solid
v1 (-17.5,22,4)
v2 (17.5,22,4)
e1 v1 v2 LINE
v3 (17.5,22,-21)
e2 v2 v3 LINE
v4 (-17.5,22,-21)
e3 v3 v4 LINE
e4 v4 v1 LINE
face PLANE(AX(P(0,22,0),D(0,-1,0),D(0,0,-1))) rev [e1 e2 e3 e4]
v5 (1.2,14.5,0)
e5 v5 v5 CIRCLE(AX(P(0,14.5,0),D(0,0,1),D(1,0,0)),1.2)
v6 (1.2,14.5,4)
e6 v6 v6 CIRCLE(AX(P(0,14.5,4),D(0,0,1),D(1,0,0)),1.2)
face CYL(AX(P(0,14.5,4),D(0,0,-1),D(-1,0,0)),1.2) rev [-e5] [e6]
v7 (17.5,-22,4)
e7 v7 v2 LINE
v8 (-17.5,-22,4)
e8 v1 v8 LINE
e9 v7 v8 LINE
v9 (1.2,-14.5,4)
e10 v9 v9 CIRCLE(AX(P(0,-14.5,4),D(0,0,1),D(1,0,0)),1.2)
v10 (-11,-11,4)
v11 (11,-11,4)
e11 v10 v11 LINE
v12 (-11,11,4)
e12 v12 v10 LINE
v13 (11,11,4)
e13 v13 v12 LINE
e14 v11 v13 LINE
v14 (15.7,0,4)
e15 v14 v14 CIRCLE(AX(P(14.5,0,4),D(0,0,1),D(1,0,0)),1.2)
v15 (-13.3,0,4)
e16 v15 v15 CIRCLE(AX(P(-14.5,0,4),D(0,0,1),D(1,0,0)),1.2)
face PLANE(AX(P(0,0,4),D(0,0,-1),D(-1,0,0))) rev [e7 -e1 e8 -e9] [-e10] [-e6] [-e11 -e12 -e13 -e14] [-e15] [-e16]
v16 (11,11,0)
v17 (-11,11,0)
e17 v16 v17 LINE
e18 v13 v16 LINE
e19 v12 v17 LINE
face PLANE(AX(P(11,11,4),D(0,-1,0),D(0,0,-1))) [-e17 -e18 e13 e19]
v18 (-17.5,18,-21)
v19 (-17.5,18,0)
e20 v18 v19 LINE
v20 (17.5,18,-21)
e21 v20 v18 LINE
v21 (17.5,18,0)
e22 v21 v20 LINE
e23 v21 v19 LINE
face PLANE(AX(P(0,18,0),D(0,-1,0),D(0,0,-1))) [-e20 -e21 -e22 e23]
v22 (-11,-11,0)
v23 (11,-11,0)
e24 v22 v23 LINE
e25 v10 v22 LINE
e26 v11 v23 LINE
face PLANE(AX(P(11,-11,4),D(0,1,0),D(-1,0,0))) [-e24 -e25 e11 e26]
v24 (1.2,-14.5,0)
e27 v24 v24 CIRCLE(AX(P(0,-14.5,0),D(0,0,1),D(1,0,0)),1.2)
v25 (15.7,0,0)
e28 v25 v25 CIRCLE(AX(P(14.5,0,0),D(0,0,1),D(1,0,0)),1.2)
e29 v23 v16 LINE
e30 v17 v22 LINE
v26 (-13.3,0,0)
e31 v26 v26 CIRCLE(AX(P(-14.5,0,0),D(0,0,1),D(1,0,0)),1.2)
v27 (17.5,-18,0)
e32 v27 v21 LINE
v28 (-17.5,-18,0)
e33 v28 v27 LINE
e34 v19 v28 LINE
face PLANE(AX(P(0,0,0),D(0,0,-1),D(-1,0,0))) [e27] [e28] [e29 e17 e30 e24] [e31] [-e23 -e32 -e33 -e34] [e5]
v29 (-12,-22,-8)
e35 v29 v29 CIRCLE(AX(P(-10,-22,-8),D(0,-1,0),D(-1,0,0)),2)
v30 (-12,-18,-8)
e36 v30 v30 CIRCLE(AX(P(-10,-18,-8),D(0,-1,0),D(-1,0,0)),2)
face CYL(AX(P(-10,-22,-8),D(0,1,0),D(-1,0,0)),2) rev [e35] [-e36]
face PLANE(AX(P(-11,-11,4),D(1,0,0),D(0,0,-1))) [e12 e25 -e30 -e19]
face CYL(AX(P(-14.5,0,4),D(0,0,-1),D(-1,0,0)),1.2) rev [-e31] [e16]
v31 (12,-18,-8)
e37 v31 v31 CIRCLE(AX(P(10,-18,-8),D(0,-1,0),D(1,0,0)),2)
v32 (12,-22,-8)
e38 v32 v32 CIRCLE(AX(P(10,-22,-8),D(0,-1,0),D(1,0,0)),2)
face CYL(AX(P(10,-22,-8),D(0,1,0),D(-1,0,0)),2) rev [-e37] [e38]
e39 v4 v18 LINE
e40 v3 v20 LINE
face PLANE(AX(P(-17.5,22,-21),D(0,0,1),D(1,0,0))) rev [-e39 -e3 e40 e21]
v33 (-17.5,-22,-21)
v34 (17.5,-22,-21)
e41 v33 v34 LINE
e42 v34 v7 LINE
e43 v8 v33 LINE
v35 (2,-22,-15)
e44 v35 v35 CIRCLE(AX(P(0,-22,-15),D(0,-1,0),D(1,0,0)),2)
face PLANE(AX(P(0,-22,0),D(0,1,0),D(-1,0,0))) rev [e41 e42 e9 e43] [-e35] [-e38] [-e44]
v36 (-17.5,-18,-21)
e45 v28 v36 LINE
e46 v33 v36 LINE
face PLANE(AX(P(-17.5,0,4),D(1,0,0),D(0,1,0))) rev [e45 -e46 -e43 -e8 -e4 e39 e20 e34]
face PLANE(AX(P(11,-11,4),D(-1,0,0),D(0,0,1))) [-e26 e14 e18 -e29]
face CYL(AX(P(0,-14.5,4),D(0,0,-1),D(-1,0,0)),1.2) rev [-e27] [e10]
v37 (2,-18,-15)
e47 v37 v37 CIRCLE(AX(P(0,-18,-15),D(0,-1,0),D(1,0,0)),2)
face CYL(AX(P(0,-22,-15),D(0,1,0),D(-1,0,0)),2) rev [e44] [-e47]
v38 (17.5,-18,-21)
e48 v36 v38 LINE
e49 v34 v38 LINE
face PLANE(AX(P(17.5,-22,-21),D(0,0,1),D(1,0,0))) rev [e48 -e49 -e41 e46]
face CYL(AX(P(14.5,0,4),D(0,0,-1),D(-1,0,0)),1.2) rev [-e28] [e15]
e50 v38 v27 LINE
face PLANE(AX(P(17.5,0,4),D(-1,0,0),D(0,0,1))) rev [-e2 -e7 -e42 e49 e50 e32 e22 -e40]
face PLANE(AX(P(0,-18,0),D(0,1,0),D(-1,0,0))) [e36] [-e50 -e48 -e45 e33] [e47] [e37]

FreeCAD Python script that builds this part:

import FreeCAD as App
import Part
import Sketcher

doc = App.newDocument("Part")
body = doc.addObject("PartDesign::Body", "Body")

# Sketch on XY plane
sketch1 = body.newObject("Sketcher::SketchObject", "Sketch")
sketch1.AttachmentSupport = (doc.getObject("XY_Plane"), [""])
sketch1.MapMode = "FlatFace"
sketch1.addGeometry(Part.LineSegment(App.Vector(17.5, -18, 0), App.Vector(17.5, 18, 0)), False)
sketch1.addGeometry(Part.LineSegment(App.Vector(17.5, 18, 0), App.Vector(-17.5, 18, 0)), False)
sketch1.addGeometry(Part.LineSegment(App.Vector(-17.5, 18, 0), App.Vector(-17.5, -18, 0)), False)
sketch1.addGeometry(Part.LineSegment(App.Vector(-17.5, -18, 0), App.Vector(17.5, -18, 0)), False)
sketch1.addGeometry(Part.Circle(App.Vector(0, -14.5, 0), App.Vector(0, 0, 1), 1.2), False)
sketch1.addGeometry(Part.Circle(App.Vector(14.5, 0, 0), App.Vector(0, 0, 1), 1.2), False)
sketch1.addGeometry(Part.LineSegment(App.Vector(-11, -11, 0), App.Vector(-11, 11, 0)), False)
sketch1.addGeometry(Part.LineSegment(App.Vector(-11, 11, 0), App.Vector(11, 11, 0)), False)
sketch1.addGeometry(Part.LineSegment(App.Vector(11, 11, 0), App.Vector(11, -11, 0)), False)
sketch1.addGeometry(Part.LineSegment(App.Vector(11, -11, 0), App.Vector(-11, -11, 0)), False)
sketch1.addGeometry(Part.Circle(App.Vector(-14.5, 0, 0), App.Vector(0, 0, 1), 1.2), False)
sketch1.addGeometry(Part.Circle(App.Vector(0, 14.5, 0), App.Vector(0, 0, 1), 1.2), False)
sketch1.addConstraint(Sketcher.Constraint("Coincident", 0, 2, 1, 1))
sketch1.addConstraint(Sketcher.Constraint("Coincident", 1, 2, 2, 1))
sketch1.addConstraint(Sketcher.Constraint("Coincident", 2, 2, 3, 1))
sketch1.addConstraint(Sketcher.Constraint("Coincident", 3, 2, 0, 1))
sketch1.addConstraint(Sketcher.Constraint("Coincident", 6, 2, 7, 1))
sketch1.addConstraint(Sketcher.Constraint("Coincident", 7, 2, 8, 1))
sketch1.addConstraint(Sketcher.Constraint("Coincident", 8, 2, 9, 1))
sketch1.addConstraint(Sketcher.Constraint("Coincident", 9, 2, 6, 1))
sketch1.addConstraint(Sketcher.Constraint("Vertical", 0))
sketch1.addConstraint(Sketcher.Constraint("Horizontal", 1))
sketch1.addConstraint(Sketcher.Constraint("Vertical", 2))
sketch1.addConstraint(Sketcher.Constraint("Horizontal", 3))
sketch1.addConstraint(Sketcher.Constraint("Vertical", 6))
sketch1.addConstraint(Sketcher.Constraint("Horizontal", 7))
sketch1.addConstraint(Sketcher.Constraint("Vertical", 8))
sketch1.addConstraint(Sketcher.Constraint("Horizontal", 9))
sketch1.addConstraint(Sketcher.Constraint("Equal", 4, 5))
sketch1.addConstraint(Sketcher.Constraint("Equal", 5, 10))
sketch1.addConstraint(Sketcher.Constraint("Equal", 10, 11))
sketch1.addConstraint(Sketcher.Constraint("Symmetric", 5, 3, 10, 3, -1, 1))
sketch1.addConstraint(Sketcher.Constraint("Symmetric", 4, 3, 11, 3, -1, 1))
sketch1.addConstraint(Sketcher.Constraint("Symmetric", 0, 2, 2, 2, -1, 1))
sketch1.addConstraint(Sketcher.Constraint("Symmetric", 6, 2, 8, 2, -1, 1))
sketch1.addConstraint(Sketcher.Constraint("PointOnObject", 4, 3, -2))
sketch1.addConstraint(Sketcher.Constraint("PointOnObject", 5, 3, -1))
sketch1.addConstraint(Sketcher.Constraint("Equal", 9, 6))
sketch1.addConstraint(Sketcher.Constraint("Diameter", 4, 2.4))
sketch1.addConstraint(Sketcher.Constraint("DistanceX", 1, 2, 1, 1, 35.0))
sketch1.addConstraint(Sketcher.Constraint("DistanceX", 7, 1, 7, 2, 22.0))
sketch1.addConstraint(Sketcher.Constraint("DistanceY", 0, 1, 0, 2, 36.0))
sketch1.addConstraint(Sketcher.Constraint("DistanceX", 10, 3, 5, 3, 29.0))
sketch1.addConstraint(Sketcher.Constraint("DistanceY", 4, 3, 11, 3, 29.0))
pad1 = body.newObject("PartDesign::Pad", "Pad")
pad1.Profile = sketch1
pad1.Length = 4

# Sketch on XZ plane
sketch2 = body.newObject("Sketcher::SketchObject", "Sketch001")
sketch2.AttachmentSupport = (doc.getObject("XZ_Plane"), [""])
sketch2.MapMode = "FlatFace"
sketch2.AttachmentOffset = App.Placement(App.Vector(0, 0, 18), App.Rotation())
sketch2.addGeometry(Part.LineSegment(App.Vector(-17.5, 4, 0), App.Vector(-17.5, -21, 0)), False)
sketch2.addGeometry(Part.LineSegment(App.Vector(-17.5, -21, 0), App.Vector(17.5, -21, 0)), False)
sketch2.addGeometry(Part.LineSegment(App.Vector(17.5, -21, 0), App.Vector(17.5, 4, 0)), False)
sketch2.addGeometry(Part.LineSegment(App.Vector(17.5, 4, 0), App.Vector(-17.5, 4, 0)), False)
sketch2.addGeometry(Part.Circle(App.Vector(0, -15, 0), App.Vector(0, 0, 1), 2), False)
sketch2.addGeometry(Part.Circle(App.Vector(-10, -8, 0), App.Vector(0, 0, 1), 2), False)
sketch2.addGeometry(Part.Circle(App.Vector(10, -8, 0), App.Vector(0, 0, 1), 2), False)
sketch2.addConstraint(Sketcher.Constraint("Coincident", 0, 2, 1, 1))
sketch2.addConstraint(Sketcher.Constraint("Coincident", 1, 2, 2, 1))
sketch2.addConstraint(Sketcher.Constraint("Coincident", 2, 2, 3, 1))
sketch2.addConstraint(Sketcher.Constraint("Coincident", 3, 2, 0, 1))
sketch2.addConstraint(Sketcher.Constraint("Vertical", 0))
sketch2.addConstraint(Sketcher.Constraint("Horizontal", 1))
sketch2.addConstraint(Sketcher.Constraint("Vertical", 2))
sketch2.addConstraint(Sketcher.Constraint("Horizontal", 3))
sketch2.addConstraint(Sketcher.Constraint("Equal", 4, 5))
sketch2.addConstraint(Sketcher.Constraint("Equal", 5, 6))
sketch2.addConstraint(Sketcher.Constraint("Symmetric", 5, 3, 6, 3, -2))
sketch2.addConstraint(Sketcher.Constraint("PointOnObject", 4, 3, -2))
sketch2.addConstraint(Sketcher.Constraint("Diameter", 4, 4.0))
sketch2.addConstraint(Sketcher.Constraint("DistanceX", 1, 1, 1, 2, 35.0))
sketch2.addConstraint(Sketcher.Constraint("DistanceY", 0, 2, 0, 1, 25.0))
sketch2.addConstraint(Sketcher.Constraint("DistanceY", 4, 3, -1, 1, 15.0))
sketch2.addConstraint(Sketcher.Constraint("DistanceX", 5, 3, -1, 1, 10.0))
sketch2.addConstraint(Sketcher.Constraint("DistanceY", 5, 3, -1, 1, 8.0))
sketch2.addConstraint(Sketcher.Constraint("DistanceY", 0, 2, -1, 1, 21.0))
sketch2.addConstraint(Sketcher.Constraint("DistanceX", 0, 2, -1, 1, 17.5))
pad2 = body.newObject("PartDesign::Pad", "Pad001")
pad2.Profile = sketch2
pad2.Length = 4

# Sketch on XZ plane
sketch3 = body.newObject("Sketcher::SketchObject", "Sketch002")
sketch3.AttachmentSupport = (doc.getObject("XZ_Plane"), [""])
sketch3.MapMode = "FlatFace"
sketch3.AttachmentOffset = App.Placement(App.Vector(0, 0, -18), App.Rotation())
sketch3.addGeometry(Part.LineSegment(App.Vector(-17.5, -21, 0), App.Vector(-17.5, 4, 0)), False)
sketch3.addGeometry(Part.LineSegment(App.Vector(-17.5, 4, 0), App.Vector(17.5, 4, 0)), False)
sketch3.addGeometry(Part.LineSegment(App.Vector(17.5, 4, 0), App.Vector(17.5, -21, 0)), False)
sketch3.addGeometry(Part.LineSegment(App.Vector(17.5, -21, 0), App.Vector(-17.5, -21, 0)), False)
sketch3.addConstraint(Sketcher.Constraint("Coincident", 0, 2, 1, 1))
sketch3.addConstraint(Sketcher.Constraint("Coincident", 1, 2, 2, 1))
sketch3.addConstraint(Sketcher.Constraint("Coincident", 2, 2, 3, 1))
sketch3.addConstraint(Sketcher.Constraint("Coincident", 3, 2, 0, 1))
sketch3.addConstraint(Sketcher.Constraint("Vertical", 0))
sketch3.addConstraint(Sketcher.Constraint("Horizontal", 1))
sketch3.addConstraint(Sketcher.Constraint("Vertical", 2))
sketch3.addConstraint(Sketcher.Constraint("Horizontal", 3))
sketch3.addConstraint(Sketcher.Constraint("DistanceX", 1, 1, 1, 2, 35.0))
sketch3.addConstraint(Sketcher.Constraint("DistanceY", 0, 1, 0, 2, 25.0))
sketch3.addConstraint(Sketcher.Constraint("DistanceY", -1, 1, 0, 2, 4.0))
sketch3.addConstraint(Sketcher.Constraint("DistanceX", 0, 2, -1, 1, 17.5))
pad3 = body.newObject("PartDesign::Pad", "Pad002")
pad3.Profile = sketch3
pad3.Length = 4
pad3.Reversed = True

doc.recompute()
